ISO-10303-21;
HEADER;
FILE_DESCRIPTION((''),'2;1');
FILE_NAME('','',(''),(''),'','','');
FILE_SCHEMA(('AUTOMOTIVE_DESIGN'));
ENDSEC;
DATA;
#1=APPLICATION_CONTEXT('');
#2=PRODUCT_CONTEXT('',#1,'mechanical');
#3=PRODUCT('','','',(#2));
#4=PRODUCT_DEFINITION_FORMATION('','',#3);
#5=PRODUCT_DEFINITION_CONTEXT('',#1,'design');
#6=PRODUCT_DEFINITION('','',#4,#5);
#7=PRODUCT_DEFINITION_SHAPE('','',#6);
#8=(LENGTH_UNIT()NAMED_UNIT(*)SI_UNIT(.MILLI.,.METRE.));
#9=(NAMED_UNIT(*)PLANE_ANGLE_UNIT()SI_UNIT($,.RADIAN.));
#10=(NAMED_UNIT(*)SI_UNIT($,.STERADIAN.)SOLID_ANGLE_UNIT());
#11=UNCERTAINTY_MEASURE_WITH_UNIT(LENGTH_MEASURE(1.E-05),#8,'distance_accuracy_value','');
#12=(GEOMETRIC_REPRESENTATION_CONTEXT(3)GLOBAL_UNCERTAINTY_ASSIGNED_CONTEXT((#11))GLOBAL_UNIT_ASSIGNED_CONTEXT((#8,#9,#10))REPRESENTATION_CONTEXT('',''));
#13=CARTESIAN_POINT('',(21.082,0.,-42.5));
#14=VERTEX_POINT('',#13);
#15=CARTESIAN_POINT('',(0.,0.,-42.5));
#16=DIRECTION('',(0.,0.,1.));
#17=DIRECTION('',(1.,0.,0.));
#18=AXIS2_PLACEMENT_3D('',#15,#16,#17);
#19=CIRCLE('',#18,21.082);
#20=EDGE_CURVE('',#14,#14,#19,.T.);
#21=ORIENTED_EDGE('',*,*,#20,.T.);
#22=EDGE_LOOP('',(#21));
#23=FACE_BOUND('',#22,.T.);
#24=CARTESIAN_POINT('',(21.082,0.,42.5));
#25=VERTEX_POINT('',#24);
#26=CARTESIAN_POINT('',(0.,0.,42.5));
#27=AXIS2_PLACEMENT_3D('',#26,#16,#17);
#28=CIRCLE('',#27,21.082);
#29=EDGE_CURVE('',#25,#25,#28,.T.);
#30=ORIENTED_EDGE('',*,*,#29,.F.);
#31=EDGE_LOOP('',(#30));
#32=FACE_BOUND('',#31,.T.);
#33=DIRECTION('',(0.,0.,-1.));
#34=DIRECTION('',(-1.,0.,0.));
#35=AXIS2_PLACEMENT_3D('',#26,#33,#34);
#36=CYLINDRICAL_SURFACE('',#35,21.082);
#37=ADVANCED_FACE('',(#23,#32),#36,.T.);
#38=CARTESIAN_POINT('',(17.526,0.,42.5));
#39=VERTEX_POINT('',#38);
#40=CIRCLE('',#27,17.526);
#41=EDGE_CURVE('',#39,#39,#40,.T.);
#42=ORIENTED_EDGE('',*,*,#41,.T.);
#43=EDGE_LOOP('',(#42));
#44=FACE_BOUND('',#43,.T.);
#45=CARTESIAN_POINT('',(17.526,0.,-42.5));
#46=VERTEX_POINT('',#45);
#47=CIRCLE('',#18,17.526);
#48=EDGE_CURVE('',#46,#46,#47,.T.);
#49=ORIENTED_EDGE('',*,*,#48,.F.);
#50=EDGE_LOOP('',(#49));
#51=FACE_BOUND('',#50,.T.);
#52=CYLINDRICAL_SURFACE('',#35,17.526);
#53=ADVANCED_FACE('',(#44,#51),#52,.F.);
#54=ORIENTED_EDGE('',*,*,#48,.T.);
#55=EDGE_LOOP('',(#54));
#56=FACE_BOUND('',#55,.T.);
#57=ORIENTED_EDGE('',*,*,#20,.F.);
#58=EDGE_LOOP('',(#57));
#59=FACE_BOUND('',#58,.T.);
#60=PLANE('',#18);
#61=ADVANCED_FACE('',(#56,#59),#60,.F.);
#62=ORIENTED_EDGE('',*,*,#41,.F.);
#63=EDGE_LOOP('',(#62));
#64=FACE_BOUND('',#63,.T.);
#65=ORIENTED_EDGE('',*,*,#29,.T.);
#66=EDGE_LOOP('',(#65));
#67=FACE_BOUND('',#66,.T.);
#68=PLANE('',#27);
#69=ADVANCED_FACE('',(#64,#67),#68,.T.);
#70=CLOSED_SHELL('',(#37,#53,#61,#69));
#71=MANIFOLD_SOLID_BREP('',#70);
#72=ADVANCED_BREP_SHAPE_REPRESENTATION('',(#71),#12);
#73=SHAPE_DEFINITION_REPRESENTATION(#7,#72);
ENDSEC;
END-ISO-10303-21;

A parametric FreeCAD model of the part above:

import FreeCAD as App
import Part
import Sketcher

V = App.Vector
Q = App.Units.Quantity

doc = App.newDocument("Part")
params = doc.addObject("Spreadsheet::Sheet", "Params")
for row, (alias, value) in enumerate([
    ("sketch1_diameter", "1.66 in"),
    ("sketch1_diameter2", "1.38 in"),
    ("pad1_length", "85 mm"),
], start=1):
    params.set(f"A{row}", alias)
    params.set(f"B{row}", "=" + value)
    params.setAlias(f"B{row}", alias)

body = doc.addObject("PartDesign::Body", "Body")

# Sketch on XY plane
sketch1 = body.newObject("Sketcher::SketchObject", "Sketch")
sketch1.AttachmentSupport = (doc.getObject("XY_Plane"), [""])
sketch1.MapMode = "FlatFace"
sketch1.addGeometry([
    Part.Circle(V(0, 0, 0), V(0, 0, 1), 21),
    Part.Circle(V(0, 0, 0), V(0, 0, 1), 18),
], False)
sketch1.addConstraint([
    Sketcher.Constraint("Coincident", 0, 3, -1, 1),
    Sketcher.Constraint("Coincident", 1, 3, -1, 1),
    Sketcher.Constraint("Diameter", 0, Q("1.66 in")),
    Sketcher.Constraint("Diameter", 1, Q("1.38 in")),
])
sketch1.setExpression("Constraints[2]", "Params.sketch1_diameter")
sketch1.setExpression("Constraints[3]", "Params.sketch1_diameter2")
pad1 = body.newObject("PartDesign::Pad", "Pad")
pad1.Profile = sketch1
pad1.setExpression("Length", "Params.pad1_length")
pad1.Midplane = True

doc.recompute()
